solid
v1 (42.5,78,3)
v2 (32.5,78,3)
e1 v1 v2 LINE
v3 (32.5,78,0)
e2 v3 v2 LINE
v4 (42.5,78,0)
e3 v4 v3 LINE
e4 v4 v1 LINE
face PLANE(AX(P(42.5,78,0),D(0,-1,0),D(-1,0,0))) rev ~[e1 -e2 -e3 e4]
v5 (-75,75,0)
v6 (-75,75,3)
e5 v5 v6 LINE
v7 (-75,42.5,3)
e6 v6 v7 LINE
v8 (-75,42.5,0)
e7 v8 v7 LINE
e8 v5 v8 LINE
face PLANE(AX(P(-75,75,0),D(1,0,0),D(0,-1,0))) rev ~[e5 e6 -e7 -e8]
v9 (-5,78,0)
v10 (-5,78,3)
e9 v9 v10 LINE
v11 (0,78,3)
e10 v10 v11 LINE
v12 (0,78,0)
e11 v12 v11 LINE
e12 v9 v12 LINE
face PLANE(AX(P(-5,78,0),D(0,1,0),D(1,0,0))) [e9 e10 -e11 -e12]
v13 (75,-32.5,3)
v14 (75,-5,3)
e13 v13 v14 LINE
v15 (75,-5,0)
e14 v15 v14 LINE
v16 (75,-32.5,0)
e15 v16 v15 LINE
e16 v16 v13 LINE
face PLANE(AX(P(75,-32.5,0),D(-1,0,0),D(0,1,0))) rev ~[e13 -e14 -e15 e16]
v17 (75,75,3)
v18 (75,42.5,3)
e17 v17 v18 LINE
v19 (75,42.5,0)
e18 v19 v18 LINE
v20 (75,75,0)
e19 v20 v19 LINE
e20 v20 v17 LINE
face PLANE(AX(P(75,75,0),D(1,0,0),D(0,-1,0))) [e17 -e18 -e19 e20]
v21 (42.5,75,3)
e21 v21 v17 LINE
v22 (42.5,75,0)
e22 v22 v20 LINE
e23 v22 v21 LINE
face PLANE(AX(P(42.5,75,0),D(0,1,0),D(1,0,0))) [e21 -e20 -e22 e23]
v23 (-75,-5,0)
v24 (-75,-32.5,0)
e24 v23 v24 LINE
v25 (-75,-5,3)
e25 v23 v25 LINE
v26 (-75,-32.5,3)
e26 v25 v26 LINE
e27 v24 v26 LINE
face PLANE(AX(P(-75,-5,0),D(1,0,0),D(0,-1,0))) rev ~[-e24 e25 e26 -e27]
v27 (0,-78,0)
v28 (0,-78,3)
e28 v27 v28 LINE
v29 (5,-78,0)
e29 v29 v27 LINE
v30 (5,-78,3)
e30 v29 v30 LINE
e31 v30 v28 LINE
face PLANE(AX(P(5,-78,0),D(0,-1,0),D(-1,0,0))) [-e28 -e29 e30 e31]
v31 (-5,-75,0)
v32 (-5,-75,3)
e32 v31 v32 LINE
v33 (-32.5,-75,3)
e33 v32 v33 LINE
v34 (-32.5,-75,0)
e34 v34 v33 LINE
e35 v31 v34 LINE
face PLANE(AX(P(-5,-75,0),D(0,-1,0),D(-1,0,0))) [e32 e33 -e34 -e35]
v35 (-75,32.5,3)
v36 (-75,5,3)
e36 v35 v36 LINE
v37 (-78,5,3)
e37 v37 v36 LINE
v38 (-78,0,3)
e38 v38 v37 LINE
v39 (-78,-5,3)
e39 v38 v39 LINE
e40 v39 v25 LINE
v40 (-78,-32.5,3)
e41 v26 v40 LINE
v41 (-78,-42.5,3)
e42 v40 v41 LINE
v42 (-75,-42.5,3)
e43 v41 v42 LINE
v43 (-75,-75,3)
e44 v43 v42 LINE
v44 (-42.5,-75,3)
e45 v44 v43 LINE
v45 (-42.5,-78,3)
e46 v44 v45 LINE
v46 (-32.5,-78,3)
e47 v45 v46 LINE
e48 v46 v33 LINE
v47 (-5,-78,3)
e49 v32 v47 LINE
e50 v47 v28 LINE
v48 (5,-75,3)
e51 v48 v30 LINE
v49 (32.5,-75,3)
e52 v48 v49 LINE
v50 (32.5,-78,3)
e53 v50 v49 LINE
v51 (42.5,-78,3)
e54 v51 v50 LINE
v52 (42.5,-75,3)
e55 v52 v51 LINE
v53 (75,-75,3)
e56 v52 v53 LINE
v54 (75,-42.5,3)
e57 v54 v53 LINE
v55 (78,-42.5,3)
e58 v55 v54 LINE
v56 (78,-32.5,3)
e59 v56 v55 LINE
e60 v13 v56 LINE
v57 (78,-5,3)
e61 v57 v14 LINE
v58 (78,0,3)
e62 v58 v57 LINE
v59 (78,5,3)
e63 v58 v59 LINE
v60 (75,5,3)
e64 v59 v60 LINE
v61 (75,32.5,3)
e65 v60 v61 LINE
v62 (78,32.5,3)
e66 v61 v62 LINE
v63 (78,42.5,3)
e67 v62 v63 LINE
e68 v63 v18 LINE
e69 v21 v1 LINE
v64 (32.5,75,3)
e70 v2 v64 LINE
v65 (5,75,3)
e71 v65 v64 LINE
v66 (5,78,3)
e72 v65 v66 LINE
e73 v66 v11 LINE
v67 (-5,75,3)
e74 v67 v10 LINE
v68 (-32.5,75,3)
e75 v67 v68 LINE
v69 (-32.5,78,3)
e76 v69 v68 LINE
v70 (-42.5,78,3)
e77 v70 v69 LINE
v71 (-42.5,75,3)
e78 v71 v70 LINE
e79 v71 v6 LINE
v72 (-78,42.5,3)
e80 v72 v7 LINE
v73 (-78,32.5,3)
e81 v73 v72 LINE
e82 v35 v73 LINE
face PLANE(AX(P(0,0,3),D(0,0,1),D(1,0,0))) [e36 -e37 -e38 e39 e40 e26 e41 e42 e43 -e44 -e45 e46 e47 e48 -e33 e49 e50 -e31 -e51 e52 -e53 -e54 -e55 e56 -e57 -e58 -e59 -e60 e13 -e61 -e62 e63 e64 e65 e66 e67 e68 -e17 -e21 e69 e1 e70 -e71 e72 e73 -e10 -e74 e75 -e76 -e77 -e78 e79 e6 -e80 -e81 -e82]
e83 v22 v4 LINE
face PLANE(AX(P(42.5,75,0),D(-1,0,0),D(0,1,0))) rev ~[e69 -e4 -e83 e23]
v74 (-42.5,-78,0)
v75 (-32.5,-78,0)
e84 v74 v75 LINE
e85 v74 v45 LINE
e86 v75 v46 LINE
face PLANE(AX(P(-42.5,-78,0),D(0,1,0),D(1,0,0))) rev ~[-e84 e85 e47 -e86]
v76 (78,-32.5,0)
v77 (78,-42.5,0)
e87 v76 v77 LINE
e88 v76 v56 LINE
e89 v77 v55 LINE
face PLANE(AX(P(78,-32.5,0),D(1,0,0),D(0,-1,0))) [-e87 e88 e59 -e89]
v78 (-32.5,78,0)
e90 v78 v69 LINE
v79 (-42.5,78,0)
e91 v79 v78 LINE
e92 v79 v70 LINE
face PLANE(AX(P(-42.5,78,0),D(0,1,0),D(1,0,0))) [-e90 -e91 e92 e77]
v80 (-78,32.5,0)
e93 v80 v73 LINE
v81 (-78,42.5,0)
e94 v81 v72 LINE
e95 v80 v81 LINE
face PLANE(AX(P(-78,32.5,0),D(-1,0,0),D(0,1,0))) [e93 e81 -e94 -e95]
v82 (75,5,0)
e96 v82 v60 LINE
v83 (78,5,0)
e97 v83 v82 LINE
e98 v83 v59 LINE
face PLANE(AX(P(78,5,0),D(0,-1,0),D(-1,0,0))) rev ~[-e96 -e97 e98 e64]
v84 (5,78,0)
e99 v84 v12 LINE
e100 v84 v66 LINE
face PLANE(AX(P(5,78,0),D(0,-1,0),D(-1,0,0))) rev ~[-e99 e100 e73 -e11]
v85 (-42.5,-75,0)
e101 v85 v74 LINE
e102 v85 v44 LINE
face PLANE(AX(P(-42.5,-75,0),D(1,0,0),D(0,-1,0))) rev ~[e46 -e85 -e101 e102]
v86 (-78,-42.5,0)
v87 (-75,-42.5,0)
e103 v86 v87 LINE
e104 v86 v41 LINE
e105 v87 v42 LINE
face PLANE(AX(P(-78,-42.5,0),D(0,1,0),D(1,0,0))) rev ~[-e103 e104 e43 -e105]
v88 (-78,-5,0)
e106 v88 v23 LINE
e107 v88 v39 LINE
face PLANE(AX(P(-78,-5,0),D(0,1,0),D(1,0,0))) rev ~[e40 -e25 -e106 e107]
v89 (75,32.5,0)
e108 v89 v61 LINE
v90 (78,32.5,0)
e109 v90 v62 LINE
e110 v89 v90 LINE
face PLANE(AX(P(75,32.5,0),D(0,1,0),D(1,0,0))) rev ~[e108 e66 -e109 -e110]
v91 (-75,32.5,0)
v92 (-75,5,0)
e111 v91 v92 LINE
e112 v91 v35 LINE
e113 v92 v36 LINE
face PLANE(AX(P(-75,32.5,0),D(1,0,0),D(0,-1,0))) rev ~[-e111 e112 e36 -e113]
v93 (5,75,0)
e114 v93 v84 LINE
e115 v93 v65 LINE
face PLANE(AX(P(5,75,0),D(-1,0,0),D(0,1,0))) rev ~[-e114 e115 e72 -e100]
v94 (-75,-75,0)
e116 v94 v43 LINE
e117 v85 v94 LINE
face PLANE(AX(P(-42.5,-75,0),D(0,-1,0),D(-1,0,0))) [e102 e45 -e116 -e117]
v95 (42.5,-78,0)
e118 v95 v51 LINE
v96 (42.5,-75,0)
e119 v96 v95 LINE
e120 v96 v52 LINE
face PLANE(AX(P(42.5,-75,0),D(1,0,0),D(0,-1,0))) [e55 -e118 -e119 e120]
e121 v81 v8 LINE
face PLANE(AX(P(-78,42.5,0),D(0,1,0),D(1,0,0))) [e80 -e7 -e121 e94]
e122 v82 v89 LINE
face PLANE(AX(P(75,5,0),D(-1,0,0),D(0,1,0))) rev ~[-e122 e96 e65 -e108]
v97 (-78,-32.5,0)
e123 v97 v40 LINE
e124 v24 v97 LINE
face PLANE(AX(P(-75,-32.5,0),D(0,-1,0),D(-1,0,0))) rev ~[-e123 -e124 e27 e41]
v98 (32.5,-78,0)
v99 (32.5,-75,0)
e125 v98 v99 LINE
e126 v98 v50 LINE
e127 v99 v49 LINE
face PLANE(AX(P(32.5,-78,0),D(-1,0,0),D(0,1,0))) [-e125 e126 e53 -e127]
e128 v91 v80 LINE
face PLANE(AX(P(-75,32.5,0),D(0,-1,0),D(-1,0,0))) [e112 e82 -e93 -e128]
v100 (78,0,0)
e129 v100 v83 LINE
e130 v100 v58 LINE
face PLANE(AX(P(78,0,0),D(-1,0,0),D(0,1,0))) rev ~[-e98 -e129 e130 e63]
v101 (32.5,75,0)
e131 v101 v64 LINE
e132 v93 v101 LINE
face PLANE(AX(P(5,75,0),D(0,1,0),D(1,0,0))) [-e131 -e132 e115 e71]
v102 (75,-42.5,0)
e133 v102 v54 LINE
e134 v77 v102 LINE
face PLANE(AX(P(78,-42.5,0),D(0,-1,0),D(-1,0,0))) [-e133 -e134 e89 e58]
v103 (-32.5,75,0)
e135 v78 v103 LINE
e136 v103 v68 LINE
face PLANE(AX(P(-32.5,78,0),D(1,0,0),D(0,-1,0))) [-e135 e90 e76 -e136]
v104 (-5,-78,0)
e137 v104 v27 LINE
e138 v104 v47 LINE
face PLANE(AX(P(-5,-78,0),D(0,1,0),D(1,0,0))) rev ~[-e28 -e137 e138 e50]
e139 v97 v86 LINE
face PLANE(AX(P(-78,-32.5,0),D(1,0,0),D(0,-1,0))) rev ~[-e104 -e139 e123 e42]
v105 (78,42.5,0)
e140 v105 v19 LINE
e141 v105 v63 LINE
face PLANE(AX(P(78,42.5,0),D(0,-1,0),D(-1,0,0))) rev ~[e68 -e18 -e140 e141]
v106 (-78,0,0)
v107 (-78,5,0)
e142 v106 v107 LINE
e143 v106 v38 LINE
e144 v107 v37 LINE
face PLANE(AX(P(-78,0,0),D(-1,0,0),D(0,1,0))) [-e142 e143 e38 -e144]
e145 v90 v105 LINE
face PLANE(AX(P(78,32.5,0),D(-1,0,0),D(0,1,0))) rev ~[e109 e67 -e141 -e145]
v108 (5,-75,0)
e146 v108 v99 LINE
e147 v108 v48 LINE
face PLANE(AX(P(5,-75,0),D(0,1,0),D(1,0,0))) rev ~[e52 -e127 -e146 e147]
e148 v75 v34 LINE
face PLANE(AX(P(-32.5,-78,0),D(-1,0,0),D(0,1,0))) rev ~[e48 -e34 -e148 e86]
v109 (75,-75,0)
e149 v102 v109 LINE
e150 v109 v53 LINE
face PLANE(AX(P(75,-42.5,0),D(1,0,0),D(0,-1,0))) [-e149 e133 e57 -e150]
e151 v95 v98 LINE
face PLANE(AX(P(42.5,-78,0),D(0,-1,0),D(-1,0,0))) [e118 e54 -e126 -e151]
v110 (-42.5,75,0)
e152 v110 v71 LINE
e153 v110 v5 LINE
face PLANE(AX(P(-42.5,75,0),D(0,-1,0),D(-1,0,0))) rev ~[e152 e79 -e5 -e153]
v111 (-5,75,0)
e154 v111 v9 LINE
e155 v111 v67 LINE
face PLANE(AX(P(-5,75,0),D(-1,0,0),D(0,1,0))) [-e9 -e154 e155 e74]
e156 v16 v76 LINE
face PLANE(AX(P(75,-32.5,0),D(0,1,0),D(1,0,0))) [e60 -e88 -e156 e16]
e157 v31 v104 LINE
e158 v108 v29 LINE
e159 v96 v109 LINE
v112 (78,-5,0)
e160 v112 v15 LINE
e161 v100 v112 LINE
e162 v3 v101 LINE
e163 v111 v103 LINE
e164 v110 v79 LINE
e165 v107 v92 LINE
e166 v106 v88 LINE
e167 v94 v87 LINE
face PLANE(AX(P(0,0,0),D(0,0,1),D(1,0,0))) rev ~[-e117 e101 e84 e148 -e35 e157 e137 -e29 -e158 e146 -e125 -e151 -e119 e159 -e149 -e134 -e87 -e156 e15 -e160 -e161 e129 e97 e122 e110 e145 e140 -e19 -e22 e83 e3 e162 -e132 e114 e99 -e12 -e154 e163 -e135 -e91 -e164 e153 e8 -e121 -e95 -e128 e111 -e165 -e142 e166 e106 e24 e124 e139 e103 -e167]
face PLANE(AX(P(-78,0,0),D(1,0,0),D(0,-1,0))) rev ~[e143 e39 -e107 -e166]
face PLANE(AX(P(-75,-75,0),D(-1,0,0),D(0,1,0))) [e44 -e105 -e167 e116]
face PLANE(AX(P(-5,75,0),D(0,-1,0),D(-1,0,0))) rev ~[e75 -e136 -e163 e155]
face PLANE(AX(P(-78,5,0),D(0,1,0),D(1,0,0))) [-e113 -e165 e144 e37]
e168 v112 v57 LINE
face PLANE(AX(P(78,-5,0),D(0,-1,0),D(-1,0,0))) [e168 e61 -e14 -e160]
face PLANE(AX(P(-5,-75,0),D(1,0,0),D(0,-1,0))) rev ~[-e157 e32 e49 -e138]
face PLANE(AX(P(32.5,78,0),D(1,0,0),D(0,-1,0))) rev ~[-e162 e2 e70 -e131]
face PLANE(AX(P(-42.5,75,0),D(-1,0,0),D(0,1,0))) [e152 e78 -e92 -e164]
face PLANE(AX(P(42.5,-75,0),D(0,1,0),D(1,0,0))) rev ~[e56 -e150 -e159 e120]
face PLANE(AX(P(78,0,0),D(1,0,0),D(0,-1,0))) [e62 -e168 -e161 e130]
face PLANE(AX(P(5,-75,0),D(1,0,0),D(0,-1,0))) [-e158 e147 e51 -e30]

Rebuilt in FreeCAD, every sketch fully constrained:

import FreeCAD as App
import Part
import Sketcher

V = App.Vector
Q = App.Units.Quantity


def add_polygon(sketch, points):
    """Adds a closed chain of lines whose ends are joined by coincident constraints."""
    first, n = sketch.GeometryCount, len(points)
    for a, b in zip(points, points[1:] + points[:1]):
        sketch.addGeometry(Part.LineSegment(App.Vector(*a, 0), App.Vector(*b, 0)), False)
    for i in range(n):
        sketch.addConstraint(Sketcher.Constraint("Coincident", first + i, 2, first + (i + 1) % n, 1))

doc = App.newDocument("Part")
params = doc.addObject("Spreadsheet::Sheet", "Params")
for row, (alias, value) in enumerate([
    ("sketch1_width", "3 mm"),
    ("sketch1_width2", "10 mm"),
    ("sketch1_width3", "32.5 mm"),
    ("sketch1_width4", "27.5 mm"),
    ("pad1_length", "3 mm"),
], start=1):
    params.set(f"A{row}", alias)
    params.set(f"B{row}", "=" + value)
    params.setAlias(f"B{row}", alias)

body = doc.addObject("PartDesign::Body", "Body")

sketch1 = body.newObject("Sketcher::SketchObject", "Sketch")
sketch1.AttachmentSupport = (doc.getObject("XY_Plane"), [""])
sketch1.MapMode = "FlatFace"
add_polygon(sketch1, [(-75, 42.5), (-78, 42.5), (-78, 32.5), (-75, 32.5), (-75, 5), (-78, 5), (-78, -5), (-75, -5), (-75, -32.5), (-78, -32.5), (-78, -42.5), (-75, -42.5), (-75, -75), (-42.5, -75), (-42.5, -78), (-32.5, -78), (-32.5, -75), (-5, -75), (-5, -78), (5, -78), (5, -75), (32.5, -75), (32.5, -78), (42.5, -78), (42.5, -75), (75, -75), (75, -42.5), (78, -42.5), (78, -32.5), (75, -32.5), (75, -5), (78, -5), (78, 5), (75, 5), (75, 32.5), (78, 32.5), (78, 42.5), (75, 42.5), (75, 75), (42.5, 75), (42.5, 78), (32.5, 78), (32.5, 75), (5, 75), (5, 78), (-5, 78), (-5, 75), (-32.5, 75), (-32.5, 78), (-42.5, 78), (-42.5, 75), (-75, 75)])
sketch1.addConstraint([
    Sketcher.Constraint("Horizontal", 0),
    Sketcher.Constraint("Vertical", 1),
    Sketcher.Constraint("Horizontal", 2),
    Sketcher.Constraint("Vertical", 3),
    Sketcher.Constraint("Horizontal", 4),
    Sketcher.Constraint("Vertical", 5),
    Sketcher.Constraint("Horizontal", 6),
    Sketcher.Constraint("Vertical", 7),
    Sketcher.Constraint("Horizontal", 8),
    Sketcher.Constraint("Vertical", 9),
    Sketcher.Constraint("Horizontal", 10),
    Sketcher.Constraint("Vertical", 11),
    Sketcher.Constraint("Horizontal", 12),
    Sketcher.Constraint("Vertical", 13),
    Sketcher.Constraint("Horizontal", 14),
    Sketcher.Constraint("Vertical", 15),
    Sketcher.Constraint("Horizontal", 16),
    Sketcher.Constraint("Vertical", 17),
    Sketcher.Constraint("Horizontal", 18),
    Sketcher.Constraint("Vertical", 19),
    Sketcher.Constraint("Horizontal", 20),
    Sketcher.Constraint("Vertical", 21),
    Sketcher.Constraint("Horizontal", 22),
    Sketcher.Constraint("Vertical", 23),
    Sketcher.Constraint("Horizontal", 24),
    Sketcher.Constraint("Vertical", 25),
    Sketcher.Constraint("Horizontal", 26),
    Sketcher.Constraint("Vertical", 27),
    Sketcher.Constraint("Horizontal", 28),
    Sketcher.Constraint("Vertical", 29),
    Sketcher.Constraint("Horizontal", 30),
    Sketcher.Constraint("Vertical", 31),
    Sketcher.Constraint("Horizontal", 32),
    Sketcher.Constraint("Vertical", 33),
    Sketcher.Constraint("Horizontal", 34),
    Sketcher.Constraint("Vertical", 35),
    Sketcher.Constraint("Horizontal", 36),
    Sketcher.Constraint("Vertical", 37),
    Sketcher.Constraint("Horizontal", 38),
    Sketcher.Constraint("Vertical", 39),
    Sketcher.Constraint("Horizontal", 40),
    Sketcher.Constraint("Vertical", 41),
    Sketcher.Constraint("Horizontal", 42),
    Sketcher.Constraint("Vertical", 43),
    Sketcher.Constraint("Horizontal", 44),
    Sketcher.Constraint("Vertical", 45),
    Sketcher.Constraint("Horizontal", 46),
    Sketcher.Constraint("Vertical", 47),
    Sketcher.Constraint("Horizontal", 48),
    Sketcher.Constraint("Vertical", 49),
    Sketcher.Constraint("Horizontal", 50),
    Sketcher.Constraint("Vertical", 51),
    Sketcher.Constraint("Symmetric", 0, 2, 26, 2, -1, 1),
    Sketcher.Constraint("Symmetric", 2, 2, 28, 2, -1, 1),
    Sketcher.Constraint("Symmetric", 4, 2, 30, 2, -1, 1),
    Sketcher.Constraint("Symmetric", 6, 2, 32, 2, -1, 1),
    Sketcher.Constraint("Symmetric", 8, 2, 34, 2, -1, 1),
    Sketcher.Constraint("Symmetric", 10, 2, 36, 2, -1, 1),
    Sketcher.Constraint("Symmetric", 12, 2, 38, 2, -1, 1),
    Sketcher.Constraint("Symmetric", 14, 2, 40, 2, -1, 1),
    Sketcher.Constraint("Symmetric", 16, 2, 42, 2, -1, 1),
    Sketcher.Constraint("Symmetric", 18, 2, 44, 2, -1, 1),
    Sketcher.Constraint("Symmetric", 20, 2, 46, 2, -1, 1),
    Sketcher.Constraint("Symmetric", 22, 2, 48, 2, -1, 1),
    Sketcher.Constraint("Symmetric", 24, 2, 50, 2, -1, 1),
    Sketcher.Constraint("Symmetric", 16, 2, 19, 2, -2),
    Sketcher.Constraint("Symmetric", 14, 2, 21, 2, -2),
    Sketcher.Constraint("Symmetric", 12, 2, 23, 2, -2),
    Sketcher.Constraint("Symmetric", 10, 2, 25, 2, -2),
    Sketcher.Constraint("Symmetric", 8, 2, 27, 2, -2),
    Sketcher.Constraint("Symmetric", 6, 2, 29, 2, -2),
    Sketcher.Constraint("Horizontal", 12, 2, 15, 2),
    Sketcher.Constraint("Horizontal", 14, 2, 17, 2),
    Sketcher.Constraint("Vertical", 1, 2, 4, 2),
    Sketcher.Constraint("Vertical", 7, 2, 10, 2),
    Sketcher.Constraint("Equal", 14, 18),
    Sketcher.Constraint("Equal", 48, 1),
    Sketcher.Constraint("Equal", 46, 3),
    Sketcher.Constraint("Equal", 1, 5),
    Sketcher.Constraint("Equal", 50, 11),
    Sketcher.Constraint("Equal", 36, 13),
    Sketcher.Constraint("DistanceX", 0, 2, 0, 1, Q("3 mm")),
    Sketcher.Constraint("DistanceX", 14, 1, 14, 2, Q("10 mm")),
    Sketcher.Constraint("DistanceX", 12, 1, 12, 2, Q("32.5 mm")),
    Sketcher.Constraint("DistanceX", 16, 1, 16, 2, Q("27.5 mm")),
])
sketch1.setExpression("Constraints[133]", "Params.sketch1_width")
sketch1.setExpression("Constraints[134]", "Params.sketch1_width2")
sketch1.setExpression("Constraints[135]", "Params.sketch1_width3")
sketch1.setExpression("Constraints[136]", "Params.sketch1_width4")
pad1 = body.newObject("PartDesign::Pad", "Pad")
pad1.Profile = sketch1
pad1.setExpression("Length", "Params.pad1_length")

doc.recompute()
